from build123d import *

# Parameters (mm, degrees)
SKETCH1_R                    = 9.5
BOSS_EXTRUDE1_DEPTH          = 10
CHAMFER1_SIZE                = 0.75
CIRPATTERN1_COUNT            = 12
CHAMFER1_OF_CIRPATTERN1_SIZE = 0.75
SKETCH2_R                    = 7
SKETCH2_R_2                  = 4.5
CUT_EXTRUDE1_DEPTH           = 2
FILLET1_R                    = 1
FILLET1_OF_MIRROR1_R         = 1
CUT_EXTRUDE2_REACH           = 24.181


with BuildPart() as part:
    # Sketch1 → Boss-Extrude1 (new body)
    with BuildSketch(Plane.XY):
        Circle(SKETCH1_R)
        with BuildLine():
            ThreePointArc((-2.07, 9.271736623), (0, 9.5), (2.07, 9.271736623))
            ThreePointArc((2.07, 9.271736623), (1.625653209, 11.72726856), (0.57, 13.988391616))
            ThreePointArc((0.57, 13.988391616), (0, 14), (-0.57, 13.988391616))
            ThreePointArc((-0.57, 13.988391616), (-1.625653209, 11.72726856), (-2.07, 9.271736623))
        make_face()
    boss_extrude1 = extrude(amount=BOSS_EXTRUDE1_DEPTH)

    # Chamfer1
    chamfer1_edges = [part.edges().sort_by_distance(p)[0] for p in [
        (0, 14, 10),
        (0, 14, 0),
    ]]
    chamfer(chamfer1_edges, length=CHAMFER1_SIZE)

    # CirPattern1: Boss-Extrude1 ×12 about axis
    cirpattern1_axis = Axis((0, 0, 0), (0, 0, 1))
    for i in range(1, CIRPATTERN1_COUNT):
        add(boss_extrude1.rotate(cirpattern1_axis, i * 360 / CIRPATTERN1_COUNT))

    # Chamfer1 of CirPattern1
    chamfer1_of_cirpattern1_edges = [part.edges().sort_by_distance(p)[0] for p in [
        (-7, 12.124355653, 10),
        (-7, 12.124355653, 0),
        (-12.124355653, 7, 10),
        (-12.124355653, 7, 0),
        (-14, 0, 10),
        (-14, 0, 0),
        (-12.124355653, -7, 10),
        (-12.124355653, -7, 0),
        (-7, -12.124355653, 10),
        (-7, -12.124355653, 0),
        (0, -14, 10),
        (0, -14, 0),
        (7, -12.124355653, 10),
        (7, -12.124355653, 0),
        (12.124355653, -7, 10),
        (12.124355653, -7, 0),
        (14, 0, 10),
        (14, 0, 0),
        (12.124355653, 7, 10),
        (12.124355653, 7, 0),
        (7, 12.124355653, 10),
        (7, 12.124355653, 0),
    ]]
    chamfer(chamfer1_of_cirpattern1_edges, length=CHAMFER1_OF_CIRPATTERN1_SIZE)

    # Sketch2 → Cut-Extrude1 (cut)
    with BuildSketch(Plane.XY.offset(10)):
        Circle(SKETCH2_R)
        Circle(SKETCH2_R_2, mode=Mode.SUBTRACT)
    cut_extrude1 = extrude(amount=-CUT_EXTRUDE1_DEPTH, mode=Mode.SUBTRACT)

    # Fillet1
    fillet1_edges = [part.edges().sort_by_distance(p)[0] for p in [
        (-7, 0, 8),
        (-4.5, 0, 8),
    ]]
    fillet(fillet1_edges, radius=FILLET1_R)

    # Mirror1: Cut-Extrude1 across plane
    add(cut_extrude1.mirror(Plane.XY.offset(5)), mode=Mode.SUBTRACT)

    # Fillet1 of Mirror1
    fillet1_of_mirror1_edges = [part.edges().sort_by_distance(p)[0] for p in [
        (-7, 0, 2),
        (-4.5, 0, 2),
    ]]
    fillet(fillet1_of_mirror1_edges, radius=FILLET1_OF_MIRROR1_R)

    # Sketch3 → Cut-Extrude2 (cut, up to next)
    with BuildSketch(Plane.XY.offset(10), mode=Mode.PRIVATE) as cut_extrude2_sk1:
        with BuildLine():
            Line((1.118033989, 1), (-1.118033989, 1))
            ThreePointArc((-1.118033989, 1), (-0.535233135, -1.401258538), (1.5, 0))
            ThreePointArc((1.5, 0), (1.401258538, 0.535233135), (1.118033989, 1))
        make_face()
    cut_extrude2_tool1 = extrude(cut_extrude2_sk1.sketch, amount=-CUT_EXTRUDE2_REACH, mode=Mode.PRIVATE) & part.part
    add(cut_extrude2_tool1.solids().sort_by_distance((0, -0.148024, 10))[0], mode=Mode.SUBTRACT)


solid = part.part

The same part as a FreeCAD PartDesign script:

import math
import FreeCAD as App
import Part
import Sketcher

V = App.Vector
Q = App.Units.Quantity


def edges_at(feature, points):
    """Names of the edges that pass closest to the given points."""
    edges = feature.Shape.Edges
    near = lambda p: min(range(len(edges)), key=lambda i: edges[i].distToShape(Part.Vertex(*p))[0])
    return sorted({f"Edge{near(p) + 1}" for p in points})

doc = App.newDocument("Part")
body = doc.addObject("PartDesign::Body", "Body")

# Sketch on XY plane
sketch1 = doc.addObject("Sketcher::SketchObject", "Sketch")
body.addObject(sketch1)
sketch1.AttachmentSupport = (doc.XY_Plane, [""])
sketch1.MapMode = "FlatFace"
sketch1.addGeometry([
    Part.ArcOfCircle(Part.Circle(V(-7.625243, 8.78528, 0), V(0, 0, 1), 9.70744), math.radians(2.872394), math.radians(32.411223)),
    Part.ArcOfCircle(Part.Circle(V(0, 0, 0), V(0, 0, 1), 14), math.radians(87.666598), math.radians(92.333402)),
    Part.ArcOfCircle(Part.Circle(V(7.625243, 8.78528, 0), V(0, 0, 1), 9.70744), math.radians(147.588777), math.radians(177.127606)),
    Part.ArcOfCircle(Part.Circle(V(0, 0, 0), V(0, 0, 1), 9.5), math.radians(102.585411), math.radians(437.414589)),
], False)
sketch1.addConstraint([
    Sketcher.Constraint("Coincident", 0, 2, 1, 1),
    Sketcher.Constraint("Coincident", 1, 2, 2, 1),
    Sketcher.Constraint("Coincident", 2, 2, 3, 1),
    Sketcher.Constraint("Coincident", 3, 2, 0, 1),
    Sketcher.Constraint("Coincident", 1, 3, -1, 1),
    Sketcher.Constraint("Coincident", 3, 3, -1, 1),
    Sketcher.Constraint("Equal", 0, 2),
    Sketcher.Constraint("Symmetric", 0, 3, 2, 3, -2),
    Sketcher.Constraint("Radius", 1, Q("14 mm")),
    Sketcher.Constraint("Radius", 3, Q("9.5 mm")),
    Sketcher.Constraint("DistanceX", 2, 2, 1, 2, Q("1.5 mm")),
    Sketcher.Constraint("DistanceX", -1, 1, 0, 2, Q("0.57 mm")),
    Sketcher.Constraint("Radius", 0, Q("9.70744 mm")),
])
pad1 = doc.addObject("PartDesign::Pad", "Pad")
body.addObject(pad1)
pad1.Profile = sketch1
pad1.Length = 10
doc.recompute()

chamfer = doc.addObject("PartDesign::Chamfer", "Chamfer")
body.addObject(chamfer)
chamfer.Base = (pad1, edges_at(pad1, [(0, 14, 10), (0, 14, 0)]))
chamfer.Size = 0.75
doc.recompute()

polarpattern = doc.addObject("PartDesign::PolarPattern", "PolarPattern")
body.addObject(polarpattern)
polarpattern.Originals = [pad1]
polarpattern.Axis = (doc.Z_Axis, [""])
polarpattern.Angle = 360
polarpattern.Occurrences = 12
body.Tip = polarpattern
doc.recompute()

chamfer2 = doc.addObject("PartDesign::Chamfer", "Chamfer001")
body.addObject(chamfer2)
chamfer2.Base = (polarpattern, edges_at(polarpattern, [
    (-7, 12.124, 10),
    (-7, 12.124, 0),
    (-12.124, 7, 10),
    (-12.124, 7, 0),
    (-14, 0, 10),
    (-14, 0, 0),
    (-12.124, -7, 10),
    (-12.124, -7, 0),
    (-7, -12.124, 10),
    (-7, -12.124, 0),
    (0, -14, 10),
    (0, -14, 0),
    (7, -12.124, 10),
    (7, -12.124, 0),
    (12.124, -7, 10),
    (12.124, -7, 0),
    (14, 0, 10),
    (14, 0, 0),
    (12.124, 7, 10),
    (12.124, 7, 0),
    (7, 12.124, 10),
    (7, 12.124, 0),
]))
chamfer2.Size = 0.75

# Sketch on XY plane
sketch2 = doc.addObject("Sketcher::SketchObject", "Sketch001")
body.addObject(sketch2)
sketch2.AttachmentSupport = (doc.XY_Plane, [""])
sketch2.MapMode = "FlatFace"
sketch2.AttachmentOffset = App.Placement(V(0, 0, 10), App.Rotation())
sketch2.addGeometry([
    Part.Circle(V(0, 0, 0), V(0, 0, 1), 7),
    Part.Circle(V(0, 0, 0), V(0, 0, 1), 4.5),
], False)
sketch2.addConstraint([
    Sketcher.Constraint("Coincident", 0, 3, -1, 1),
    Sketcher.Constraint("Coincident", 1, 3, -1, 1),
    Sketcher.Constraint("Diameter", 0, Q("14 mm")),
    Sketcher.Constraint("Diameter", 1, Q("9 mm")),
])
pocket1 = doc.addObject("PartDesign::Pocket", "Pocket")
body.addObject(pocket1)
pocket1.Profile = sketch2
pocket1.Length = 2
doc.recompute()

fillet = doc.addObject("PartDesign::Fillet", "Fillet")
body.addObject(fillet)
fillet.Base = (pocket1, edges_at(pocket1, [(-7, 0, 8), (-4.5, 0, 8)]))
fillet.Radius = 1
doc.recompute()

datumplane = doc.addObject("PartDesign::Plane", "DatumPlane")
body.addObject(datumplane)
datumplane.AttachmentSupport = (doc.XY_Plane, [""])
datumplane.MapMode = "FlatFace"
datumplane.AttachmentOffset = App.Placement(V(0, 0, 5), App.Rotation())
mirrored = doc.addObject("PartDesign::Mirrored", "Mirrored")
body.addObject(mirrored)
mirrored.Originals = [pocket1]
mirrored.MirrorPlane = (datumplane, [""])
body.Tip = mirrored
doc.recompute()

fillet2 = doc.addObject("PartDesign::Fillet", "Fillet001")
body.addObject(fillet2)
fillet2.Base = (mirrored, edges_at(mirrored, [(-7, 0, 2), (-4.5, 0, 2)]))
fillet2.Radius = 1

# Sketch on XY plane
sketch3 = doc.addObject("Sketcher::SketchObject", "Sketch002")
body.addObject(sketch3)
sketch3.AttachmentSupport = (doc.XY_Plane, [""])
sketch3.MapMode = "FlatFace"
sketch3.AttachmentOffset = App.Placement(V(0, 0, 10), App.Rotation())
sketch3.addGeometry([
    Part.LineSegment(V(1.118034, 1, 0), V(-1.118034, 1, 0)),
    Part.ArcOfCircle(Part.Circle(V(0, 0, 0), V(0, 0, 1), 1.5), math.radians(138.189685), math.radians(360)),
    Part.ArcOfCircle(Part.Circle(V(0, 0, 0), V(0, 0, 1), 1.5), math.radians(0), math.radians(41.810315)),
], False)
sketch3.addConstraint([
    Sketcher.Constraint("Coincident", 0, 2, 1, 1),
    Sketcher.Constraint("Tangent", 1, 2, 2, 1),
    Sketcher.Constraint("Coincident", 2, 2, 0, 1),
    Sketcher.Constraint("Horizontal", 0),
    Sketcher.Constraint("Coincident", 1, 3, -1, 1),
    Sketcher.Constraint("Equal", 1, 2),
    Sketcher.Constraint("PointOnObject", 1, 2, -1),
    Sketcher.Constraint("Radius", 1, Q("1.5 mm")),
    Sketcher.Constraint("DistanceY", -1, 1, 0, 2, Q("1 mm")),
])
pocket2 = doc.addObject("PartDesign::Pocket", "Pocket001")
body.addObject(pocket2)
pocket2.Profile = sketch3
pocket2.Type = "UpToFirst"

doc.recompute()
